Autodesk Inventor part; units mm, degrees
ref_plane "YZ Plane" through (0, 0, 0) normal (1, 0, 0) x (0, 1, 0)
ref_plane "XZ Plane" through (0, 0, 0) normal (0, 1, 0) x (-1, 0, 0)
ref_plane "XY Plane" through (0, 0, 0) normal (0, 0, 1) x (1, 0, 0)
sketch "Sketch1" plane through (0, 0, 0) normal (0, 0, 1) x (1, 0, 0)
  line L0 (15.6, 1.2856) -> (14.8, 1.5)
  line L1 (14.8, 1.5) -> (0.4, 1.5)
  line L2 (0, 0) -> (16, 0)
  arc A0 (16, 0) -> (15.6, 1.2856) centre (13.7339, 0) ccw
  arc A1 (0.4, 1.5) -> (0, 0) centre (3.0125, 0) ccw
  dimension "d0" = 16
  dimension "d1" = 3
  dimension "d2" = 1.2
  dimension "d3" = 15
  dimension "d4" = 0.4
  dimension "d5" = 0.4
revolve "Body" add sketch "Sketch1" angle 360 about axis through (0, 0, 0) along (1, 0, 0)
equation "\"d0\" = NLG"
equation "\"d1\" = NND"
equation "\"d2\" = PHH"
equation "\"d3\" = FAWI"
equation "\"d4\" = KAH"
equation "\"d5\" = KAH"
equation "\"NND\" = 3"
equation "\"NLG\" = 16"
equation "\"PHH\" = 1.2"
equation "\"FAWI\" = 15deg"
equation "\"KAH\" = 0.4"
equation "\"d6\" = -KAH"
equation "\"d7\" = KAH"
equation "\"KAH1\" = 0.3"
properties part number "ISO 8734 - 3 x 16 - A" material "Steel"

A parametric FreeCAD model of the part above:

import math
import FreeCAD as App
import Part
import Sketcher

doc = App.newDocument("Part")
body = doc.addObject("PartDesign::Body", "Body")

# Sketch on XY plane
sketch1 = body.newObject("Sketcher::SketchObject", "Sketch")
sketch1.AttachmentSupport = (doc.getObject("XY_Plane"), [""])
sketch1.MapMode = "FlatFace"
sketch1.addGeometry([
    Part.ArcOfCircle(Part.Circle(App.Vector(13.7339, 0, 0), App.Vector(0, 0, 1), 2.2661), math.radians(0), math.radians(34.563866)),  # 0
    Part.LineSegment(App.Vector(15.6, 1.2856, 0), App.Vector(14.8, 1.5, 0)),  # 1
    Part.LineSegment(App.Vector(14.8, 1.5, 0), App.Vector(0.4, 1.5, 0)),  # 2
    Part.ArcOfCircle(Part.Circle(App.Vector(3.0125, 0, 0), App.Vector(0, 0, 1), 3.0125), math.radians(150.137166), math.radians(180)),  # 3
    Part.LineSegment(App.Vector(0, 0, 0), App.Vector(16, 0, 0)),  # 4
], False)
sketch1.addConstraint([
    Sketcher.Constraint("Coincident", 0, 2, 1, 1),
    Sketcher.Constraint("Coincident", 1, 2, 2, 1),
    Sketcher.Constraint("Coincident", 2, 2, 3, 1),
    Sketcher.Constraint("Coincident", 3, 2, 4, 1),
    Sketcher.Constraint("Coincident", 4, 2, 0, 1),
    Sketcher.Constraint("Horizontal", 2),
    Sketcher.Constraint("Horizontal", 4),
    Sketcher.Constraint("Coincident", 3, 2, -1, 1),
    Sketcher.Constraint("PointOnObject", 0, 3, -1),
    Sketcher.Constraint("PointOnObject", 3, 3, -1),
    Sketcher.Constraint("DistanceX", 4, 1, 4, 2, 16.0),
    Sketcher.Constraint("DistanceX", -1, 1, 2, 2, 0.4),
    Sketcher.Constraint("DistanceX", 0, 2, 4, 2, 0.4),
    Sketcher.Constraint("DistanceX", 1, 2, 4, 2, 1.2),
    Sketcher.Constraint("Radius", 0, 2.266),
    Sketcher.Constraint("DistanceY", -1, 1, 1, 2, 1.5),
])
revolution = body.newObject("PartDesign::Revolution", "Revolution")
revolution.Profile = sketch1
revolution.ReferenceAxis = (sketch1, ["H_Axis"])
revolution.Angle = 360

doc.recompute()
